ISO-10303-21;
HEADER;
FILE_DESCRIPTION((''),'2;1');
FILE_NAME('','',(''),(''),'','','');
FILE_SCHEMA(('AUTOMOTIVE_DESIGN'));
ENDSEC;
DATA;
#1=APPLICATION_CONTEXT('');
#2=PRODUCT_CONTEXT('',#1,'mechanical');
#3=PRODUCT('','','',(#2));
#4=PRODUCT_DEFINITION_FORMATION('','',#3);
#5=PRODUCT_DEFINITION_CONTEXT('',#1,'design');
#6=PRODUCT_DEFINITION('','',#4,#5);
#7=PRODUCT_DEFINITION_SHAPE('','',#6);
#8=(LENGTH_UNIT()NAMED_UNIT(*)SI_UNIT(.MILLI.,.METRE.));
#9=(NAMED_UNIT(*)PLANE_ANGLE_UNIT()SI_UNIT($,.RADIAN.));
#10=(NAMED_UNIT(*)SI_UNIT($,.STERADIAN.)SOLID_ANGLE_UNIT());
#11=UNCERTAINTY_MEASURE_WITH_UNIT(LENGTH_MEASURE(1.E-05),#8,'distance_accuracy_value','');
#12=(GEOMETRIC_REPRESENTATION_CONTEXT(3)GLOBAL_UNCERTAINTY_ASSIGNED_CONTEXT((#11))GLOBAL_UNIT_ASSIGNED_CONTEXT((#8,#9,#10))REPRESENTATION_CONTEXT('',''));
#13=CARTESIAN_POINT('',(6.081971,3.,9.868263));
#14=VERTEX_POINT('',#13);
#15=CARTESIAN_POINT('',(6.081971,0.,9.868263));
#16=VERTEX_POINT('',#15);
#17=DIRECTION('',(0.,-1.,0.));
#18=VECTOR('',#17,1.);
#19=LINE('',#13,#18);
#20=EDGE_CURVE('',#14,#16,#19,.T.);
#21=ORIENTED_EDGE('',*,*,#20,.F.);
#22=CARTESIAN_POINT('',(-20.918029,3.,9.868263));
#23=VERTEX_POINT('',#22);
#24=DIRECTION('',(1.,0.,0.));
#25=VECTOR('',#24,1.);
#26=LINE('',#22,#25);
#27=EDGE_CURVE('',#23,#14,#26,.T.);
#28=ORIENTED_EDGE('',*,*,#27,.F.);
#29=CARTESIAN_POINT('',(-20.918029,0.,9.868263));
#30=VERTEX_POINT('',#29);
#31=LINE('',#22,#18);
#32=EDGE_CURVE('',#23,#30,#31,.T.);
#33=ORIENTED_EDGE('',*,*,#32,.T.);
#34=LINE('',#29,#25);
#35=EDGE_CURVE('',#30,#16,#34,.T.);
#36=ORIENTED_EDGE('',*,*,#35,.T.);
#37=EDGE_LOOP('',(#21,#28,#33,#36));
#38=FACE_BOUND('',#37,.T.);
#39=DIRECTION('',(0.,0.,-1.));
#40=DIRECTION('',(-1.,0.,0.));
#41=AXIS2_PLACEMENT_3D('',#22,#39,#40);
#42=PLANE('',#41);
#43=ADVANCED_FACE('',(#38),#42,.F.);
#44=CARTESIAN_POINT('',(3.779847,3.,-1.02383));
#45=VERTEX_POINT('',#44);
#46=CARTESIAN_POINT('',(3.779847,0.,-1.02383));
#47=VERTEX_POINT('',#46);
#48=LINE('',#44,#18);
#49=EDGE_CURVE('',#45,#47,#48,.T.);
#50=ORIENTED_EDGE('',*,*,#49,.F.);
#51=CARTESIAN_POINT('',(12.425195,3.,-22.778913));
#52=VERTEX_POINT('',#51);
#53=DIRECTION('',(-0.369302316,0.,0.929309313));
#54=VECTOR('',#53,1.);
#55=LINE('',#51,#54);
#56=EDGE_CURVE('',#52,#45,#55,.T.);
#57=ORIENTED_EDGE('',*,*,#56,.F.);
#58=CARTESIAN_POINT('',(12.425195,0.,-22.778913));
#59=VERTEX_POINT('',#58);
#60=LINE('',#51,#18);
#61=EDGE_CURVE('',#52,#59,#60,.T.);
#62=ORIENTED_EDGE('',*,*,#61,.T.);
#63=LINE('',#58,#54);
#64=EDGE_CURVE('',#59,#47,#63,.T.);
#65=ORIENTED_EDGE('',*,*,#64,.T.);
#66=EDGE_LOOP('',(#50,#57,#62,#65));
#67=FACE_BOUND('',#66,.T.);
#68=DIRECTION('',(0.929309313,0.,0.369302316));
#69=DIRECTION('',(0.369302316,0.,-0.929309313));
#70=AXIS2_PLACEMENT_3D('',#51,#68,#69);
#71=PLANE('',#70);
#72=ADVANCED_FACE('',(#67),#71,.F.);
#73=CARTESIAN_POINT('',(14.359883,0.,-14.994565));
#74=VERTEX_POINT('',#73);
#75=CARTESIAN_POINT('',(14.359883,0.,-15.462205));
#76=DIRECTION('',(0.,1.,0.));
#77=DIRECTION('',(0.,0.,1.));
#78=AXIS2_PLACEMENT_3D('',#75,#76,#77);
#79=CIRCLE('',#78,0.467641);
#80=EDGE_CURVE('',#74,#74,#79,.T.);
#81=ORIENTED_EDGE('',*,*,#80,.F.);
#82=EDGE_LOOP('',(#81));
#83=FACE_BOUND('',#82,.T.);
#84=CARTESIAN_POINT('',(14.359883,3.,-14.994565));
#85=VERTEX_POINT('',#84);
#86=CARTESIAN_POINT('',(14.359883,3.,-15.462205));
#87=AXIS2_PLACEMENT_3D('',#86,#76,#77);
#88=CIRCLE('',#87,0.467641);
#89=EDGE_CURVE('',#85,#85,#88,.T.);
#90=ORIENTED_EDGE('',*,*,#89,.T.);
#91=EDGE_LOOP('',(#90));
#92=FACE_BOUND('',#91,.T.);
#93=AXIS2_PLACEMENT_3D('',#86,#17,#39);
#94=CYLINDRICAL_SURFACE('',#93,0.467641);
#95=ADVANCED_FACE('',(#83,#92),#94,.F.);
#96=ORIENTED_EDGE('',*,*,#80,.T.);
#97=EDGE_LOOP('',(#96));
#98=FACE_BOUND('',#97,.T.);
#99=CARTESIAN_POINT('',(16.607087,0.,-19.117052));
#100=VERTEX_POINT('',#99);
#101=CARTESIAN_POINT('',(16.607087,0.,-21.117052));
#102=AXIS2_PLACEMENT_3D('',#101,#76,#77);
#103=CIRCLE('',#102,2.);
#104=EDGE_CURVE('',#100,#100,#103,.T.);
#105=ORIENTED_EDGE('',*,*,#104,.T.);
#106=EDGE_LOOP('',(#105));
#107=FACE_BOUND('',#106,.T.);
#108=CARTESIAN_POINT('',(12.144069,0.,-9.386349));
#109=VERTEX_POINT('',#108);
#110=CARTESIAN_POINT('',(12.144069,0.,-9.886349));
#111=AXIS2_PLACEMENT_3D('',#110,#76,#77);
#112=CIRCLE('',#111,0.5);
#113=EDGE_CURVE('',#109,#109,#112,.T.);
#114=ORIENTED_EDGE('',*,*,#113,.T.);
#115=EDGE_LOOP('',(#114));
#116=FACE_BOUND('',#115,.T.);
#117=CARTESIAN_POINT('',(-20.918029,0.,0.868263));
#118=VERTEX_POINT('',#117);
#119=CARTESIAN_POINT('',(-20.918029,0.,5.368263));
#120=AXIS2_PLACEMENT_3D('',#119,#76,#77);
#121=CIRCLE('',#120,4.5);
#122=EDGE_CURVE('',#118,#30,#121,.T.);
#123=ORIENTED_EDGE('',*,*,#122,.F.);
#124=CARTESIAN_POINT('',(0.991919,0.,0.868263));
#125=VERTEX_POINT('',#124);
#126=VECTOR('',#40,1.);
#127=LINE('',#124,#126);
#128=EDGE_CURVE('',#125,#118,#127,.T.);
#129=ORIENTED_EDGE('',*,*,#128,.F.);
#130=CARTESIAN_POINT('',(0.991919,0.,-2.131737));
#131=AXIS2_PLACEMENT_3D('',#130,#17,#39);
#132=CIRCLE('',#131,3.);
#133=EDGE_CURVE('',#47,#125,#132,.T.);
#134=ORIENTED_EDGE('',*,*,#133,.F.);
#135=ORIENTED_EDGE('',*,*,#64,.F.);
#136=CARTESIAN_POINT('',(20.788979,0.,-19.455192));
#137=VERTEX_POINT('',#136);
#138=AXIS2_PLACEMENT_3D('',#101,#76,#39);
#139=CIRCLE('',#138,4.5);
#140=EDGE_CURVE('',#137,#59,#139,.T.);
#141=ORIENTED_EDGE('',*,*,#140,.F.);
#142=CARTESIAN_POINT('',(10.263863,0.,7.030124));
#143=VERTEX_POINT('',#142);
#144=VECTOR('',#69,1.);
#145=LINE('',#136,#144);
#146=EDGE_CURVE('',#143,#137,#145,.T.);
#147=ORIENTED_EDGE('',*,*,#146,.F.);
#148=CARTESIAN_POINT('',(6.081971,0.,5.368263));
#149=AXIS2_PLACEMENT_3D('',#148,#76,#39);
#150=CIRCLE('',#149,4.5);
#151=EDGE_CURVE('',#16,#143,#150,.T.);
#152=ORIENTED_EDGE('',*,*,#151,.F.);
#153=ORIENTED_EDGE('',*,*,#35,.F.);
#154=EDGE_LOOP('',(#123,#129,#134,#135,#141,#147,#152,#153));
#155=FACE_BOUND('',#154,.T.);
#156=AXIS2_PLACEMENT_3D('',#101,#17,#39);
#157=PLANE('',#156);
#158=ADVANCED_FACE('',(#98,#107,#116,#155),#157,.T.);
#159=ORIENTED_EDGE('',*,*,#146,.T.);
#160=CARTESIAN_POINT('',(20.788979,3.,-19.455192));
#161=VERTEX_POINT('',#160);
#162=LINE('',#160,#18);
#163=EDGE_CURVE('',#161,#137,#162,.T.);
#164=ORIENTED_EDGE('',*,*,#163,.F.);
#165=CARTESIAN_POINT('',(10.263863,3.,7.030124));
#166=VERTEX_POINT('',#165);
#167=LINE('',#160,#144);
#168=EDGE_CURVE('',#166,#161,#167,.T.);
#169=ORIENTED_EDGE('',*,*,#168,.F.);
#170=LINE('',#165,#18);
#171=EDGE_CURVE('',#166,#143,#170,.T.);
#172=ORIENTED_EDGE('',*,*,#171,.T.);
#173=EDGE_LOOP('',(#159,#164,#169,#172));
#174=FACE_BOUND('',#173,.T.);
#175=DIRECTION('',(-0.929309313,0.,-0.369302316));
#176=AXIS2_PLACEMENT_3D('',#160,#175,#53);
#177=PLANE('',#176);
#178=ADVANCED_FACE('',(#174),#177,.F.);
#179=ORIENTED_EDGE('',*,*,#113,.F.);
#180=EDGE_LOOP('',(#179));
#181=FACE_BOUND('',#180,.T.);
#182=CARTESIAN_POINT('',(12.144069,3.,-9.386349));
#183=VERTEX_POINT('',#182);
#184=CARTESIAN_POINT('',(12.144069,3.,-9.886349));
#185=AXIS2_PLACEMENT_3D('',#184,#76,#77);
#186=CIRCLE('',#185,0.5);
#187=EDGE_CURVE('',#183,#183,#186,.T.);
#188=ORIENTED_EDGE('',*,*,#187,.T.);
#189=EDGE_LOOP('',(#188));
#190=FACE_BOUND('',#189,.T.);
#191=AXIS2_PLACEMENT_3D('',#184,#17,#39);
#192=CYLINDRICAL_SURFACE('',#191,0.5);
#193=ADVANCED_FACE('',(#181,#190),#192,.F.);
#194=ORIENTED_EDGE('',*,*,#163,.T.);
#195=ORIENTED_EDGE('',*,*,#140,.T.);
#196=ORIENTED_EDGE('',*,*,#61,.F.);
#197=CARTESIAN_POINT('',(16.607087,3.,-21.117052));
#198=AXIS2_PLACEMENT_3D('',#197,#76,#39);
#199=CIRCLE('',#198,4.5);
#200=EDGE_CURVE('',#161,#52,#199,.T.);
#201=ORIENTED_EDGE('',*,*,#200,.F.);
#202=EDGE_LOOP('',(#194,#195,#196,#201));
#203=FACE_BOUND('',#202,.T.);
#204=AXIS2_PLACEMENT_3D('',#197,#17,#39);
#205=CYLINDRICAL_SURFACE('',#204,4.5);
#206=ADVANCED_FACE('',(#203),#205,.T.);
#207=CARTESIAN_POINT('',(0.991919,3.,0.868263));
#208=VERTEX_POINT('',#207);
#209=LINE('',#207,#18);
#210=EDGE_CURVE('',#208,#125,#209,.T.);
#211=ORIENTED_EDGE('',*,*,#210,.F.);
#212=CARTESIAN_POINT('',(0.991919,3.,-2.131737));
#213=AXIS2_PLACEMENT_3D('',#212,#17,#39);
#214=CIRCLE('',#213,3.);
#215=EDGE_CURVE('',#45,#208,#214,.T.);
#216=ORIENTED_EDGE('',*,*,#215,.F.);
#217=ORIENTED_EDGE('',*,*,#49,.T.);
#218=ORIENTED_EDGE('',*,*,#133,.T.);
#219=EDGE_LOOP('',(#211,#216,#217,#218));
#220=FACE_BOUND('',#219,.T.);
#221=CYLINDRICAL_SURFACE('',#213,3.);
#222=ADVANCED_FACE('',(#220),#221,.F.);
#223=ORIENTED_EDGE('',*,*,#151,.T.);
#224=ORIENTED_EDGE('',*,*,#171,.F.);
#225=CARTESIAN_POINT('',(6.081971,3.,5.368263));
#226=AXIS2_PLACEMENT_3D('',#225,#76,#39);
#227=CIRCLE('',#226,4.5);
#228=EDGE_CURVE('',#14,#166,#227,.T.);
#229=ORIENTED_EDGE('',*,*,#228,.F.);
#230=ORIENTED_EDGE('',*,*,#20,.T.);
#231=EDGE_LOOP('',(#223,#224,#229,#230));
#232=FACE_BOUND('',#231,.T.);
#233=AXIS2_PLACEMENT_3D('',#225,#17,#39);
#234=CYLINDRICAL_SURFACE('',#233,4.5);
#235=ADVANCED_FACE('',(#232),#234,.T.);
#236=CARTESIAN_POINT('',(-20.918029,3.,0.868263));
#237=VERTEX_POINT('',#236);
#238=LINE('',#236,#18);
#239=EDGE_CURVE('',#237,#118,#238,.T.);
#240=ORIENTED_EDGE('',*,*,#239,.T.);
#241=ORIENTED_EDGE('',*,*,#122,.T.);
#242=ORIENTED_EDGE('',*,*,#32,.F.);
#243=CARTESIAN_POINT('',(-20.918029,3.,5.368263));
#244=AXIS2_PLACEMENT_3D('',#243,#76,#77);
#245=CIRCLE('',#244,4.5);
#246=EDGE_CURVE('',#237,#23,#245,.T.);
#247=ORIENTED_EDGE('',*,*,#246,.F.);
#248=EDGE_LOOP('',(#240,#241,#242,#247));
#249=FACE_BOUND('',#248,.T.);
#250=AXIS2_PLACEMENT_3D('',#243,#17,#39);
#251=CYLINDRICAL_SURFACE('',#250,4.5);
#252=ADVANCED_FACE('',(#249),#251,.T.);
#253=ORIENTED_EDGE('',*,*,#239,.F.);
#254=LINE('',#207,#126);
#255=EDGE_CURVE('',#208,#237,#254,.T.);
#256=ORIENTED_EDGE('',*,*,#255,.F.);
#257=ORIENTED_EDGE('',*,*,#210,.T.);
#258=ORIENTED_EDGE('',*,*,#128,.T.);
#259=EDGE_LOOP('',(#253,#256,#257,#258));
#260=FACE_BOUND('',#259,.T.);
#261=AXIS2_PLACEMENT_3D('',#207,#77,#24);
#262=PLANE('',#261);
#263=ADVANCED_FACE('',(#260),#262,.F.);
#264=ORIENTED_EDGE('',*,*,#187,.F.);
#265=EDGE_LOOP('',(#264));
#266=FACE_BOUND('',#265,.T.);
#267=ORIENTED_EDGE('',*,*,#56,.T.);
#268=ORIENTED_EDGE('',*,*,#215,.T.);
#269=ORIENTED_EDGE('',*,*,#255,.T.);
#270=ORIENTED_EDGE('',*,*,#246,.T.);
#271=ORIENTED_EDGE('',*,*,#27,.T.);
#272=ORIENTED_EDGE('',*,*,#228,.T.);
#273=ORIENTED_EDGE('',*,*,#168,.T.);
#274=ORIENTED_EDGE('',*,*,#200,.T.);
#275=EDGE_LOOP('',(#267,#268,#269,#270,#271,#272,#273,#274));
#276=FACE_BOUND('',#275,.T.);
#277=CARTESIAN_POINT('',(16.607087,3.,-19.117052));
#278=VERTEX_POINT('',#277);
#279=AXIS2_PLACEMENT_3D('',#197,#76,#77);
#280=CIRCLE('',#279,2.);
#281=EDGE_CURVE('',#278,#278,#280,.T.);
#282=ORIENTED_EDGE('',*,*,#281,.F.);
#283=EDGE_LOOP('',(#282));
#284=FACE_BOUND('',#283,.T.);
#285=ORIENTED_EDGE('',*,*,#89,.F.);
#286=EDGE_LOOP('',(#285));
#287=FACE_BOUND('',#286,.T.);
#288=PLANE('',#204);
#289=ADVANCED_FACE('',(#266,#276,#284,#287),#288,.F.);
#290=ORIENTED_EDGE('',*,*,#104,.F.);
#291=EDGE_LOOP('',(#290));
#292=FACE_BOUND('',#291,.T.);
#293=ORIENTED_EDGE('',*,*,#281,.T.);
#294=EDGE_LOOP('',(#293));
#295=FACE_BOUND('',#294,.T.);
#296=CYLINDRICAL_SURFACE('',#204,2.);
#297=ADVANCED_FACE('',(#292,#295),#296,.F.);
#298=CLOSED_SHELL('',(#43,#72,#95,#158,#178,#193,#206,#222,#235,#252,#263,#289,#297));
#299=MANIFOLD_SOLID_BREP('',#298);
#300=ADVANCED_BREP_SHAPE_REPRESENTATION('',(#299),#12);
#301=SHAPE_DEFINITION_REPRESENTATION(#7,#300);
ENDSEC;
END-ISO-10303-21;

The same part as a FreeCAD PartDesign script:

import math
import FreeCAD as App
import Part
import Sketcher
from FreeCAD import Vector
Q = App.Units.Quantity

doc = App.newDocument("Part")
params = doc.addObject("Spreadsheet::Sheet", "Params")
for row, (alias, value) in enumerate([
    ("sketch1_diameter", "1 mm"),
    ("sketch1_diameter2", "4 mm"),
    ("sketch1_radius", "3 mm"),
    ("sketch1_radius2", "4.5 mm"),
    ("sketch1_width", "27 mm"),
    ("pad1_length", "3 mm"),
], start=1):
    params.set(f"A{row}", alias)
    params.set(f"B{row}", "=" + value)
    params.setAlias(f"B{row}", alias)

body = doc.addObject("PartDesign::Body", "Body")

# Sketch on XZ plane
sketch1 = body.newObject("Sketcher::SketchObject", "Sketch")
sketch1.AttachmentSupport = (doc.getObject("XZ_Plane"), [""])
sketch1.MapMode = "FlatFace"
sketch1.addGeometry(Part.LineSegment(Vector(10.263863, 7.030124, 0), Vector(20.788979, -19.455192, 0)), False)
sketch1.addGeometry(Part.ArcOfCircle(Part.Circle(Vector(16.607087, -21.117052, 0), Vector(0, 0, 1), 4.5), math.radians(-158.327404), math.radians(21.672596)), False)
sketch1.addGeometry(Part.LineSegment(Vector(12.425195, -22.778913, 0), Vector(3.779847, -1.02383, 0)), False)
sketch1.addGeometry(Part.ArcOfCircle(Part.Circle(Vector(0.991919, -2.131737, 0), Vector(0, 0, 1), 3), math.radians(21.672596), math.radians(90)), False)
sketch1.addGeometry(Part.LineSegment(Vector(0.991919, 0.868263, 0), Vector(-20.918029, 0.868263, 0)), False)
sketch1.addGeometry(Part.ArcOfCircle(Part.Circle(Vector(-20.918029, 5.368263, 0), Vector(0, 0, 1), 4.5), math.radians(90), math.radians(270)), False)
sketch1.addGeometry(Part.LineSegment(Vector(-20.918029, 9.868263, 0), Vector(6.081971, 9.868263, 0)), False)
sketch1.addGeometry(Part.ArcOfCircle(Part.Circle(Vector(6.081971, 5.368263, 0), Vector(0, 0, 1), 4.5), math.radians(21.672596), math.radians(90)), False)
sketch1.addGeometry(Part.Circle(Vector(12.144069, -9.886349, 0), Vector(0, 0, 1), 0.5), False)
sketch1.addGeometry(Part.Circle(Vector(14.359883, -15.462205, 0), Vector(0, 0, 1), 0.467641), False)
sketch1.addGeometry(Part.Circle(Vector(16.607087, -21.117052, 0), Vector(0, 0, 1), 2), False)
sketch1.addConstraint(Sketcher.Constraint("Tangent", 0, 2, 1, 2))
sketch1.addConstraint(Sketcher.Constraint("Tangent", 1, 1, 2, 1))
sketch1.addConstraint(Sketcher.Constraint("Tangent", 2, 2, 3, 1))
sketch1.addConstraint(Sketcher.Constraint("Tangent", 3, 2, 4, 1))
sketch1.addConstraint(Sketcher.Constraint("Tangent", 4, 2, 5, 2))
sketch1.addConstraint(Sketcher.Constraint("Tangent", 5, 1, 6, 1))
sketch1.addConstraint(Sketcher.Constraint("Tangent", 6, 2, 7, 2))
sketch1.addConstraint(Sketcher.Constraint("Tangent", 7, 1, 0, 1))
sketch1.addConstraint(Sketcher.Constraint("Horizontal", 4))
sketch1.addConstraint(Sketcher.Constraint("Horizontal", 6))
sketch1.addConstraint(Sketcher.Constraint("Coincident", 10, 3, 1, 3))
sketch1.addConstraint(Sketcher.Constraint("Equal", 1, 5))
sketch1.addConstraint(Sketcher.Constraint("Equal", 5, 7))
sketch1.addConstraint(Sketcher.Constraint("Parallel", 0, 2))
sketch1.addConstraint(Sketcher.Constraint("Diameter", 8, Q("1 mm")))
sketch1.addConstraint(Sketcher.Constraint("Diameter", 10, Q("4 mm")))
sketch1.addConstraint(Sketcher.Constraint("Radius", 3, Q("3 mm")))
sketch1.addConstraint(Sketcher.Constraint("Radius", 1, Q("4.5 mm")))
sketch1.addConstraint(Sketcher.Constraint("DistanceX", 6, 1, 6, 2, Q("27 mm")))
sketch1.addConstraint(Sketcher.Constraint("Distance", 0, Q("28.5 mm")))
sketch1.addConstraint(Sketcher.Constraint("Diameter", 9, Q("0.935281 mm")))
sketch1.addConstraint(Sketcher.Constraint("DistanceX", 4, 2, 4, 1, Q("21.909948 mm")))
sketch1.addConstraint(Sketcher.Constraint("DistanceX", -1, 1, 3, 3, Q("0.991919 mm")))
sketch1.addConstraint(Sketcher.Constraint("DistanceX", -1, 1, 8, 3, Q("12.144069 mm")))
sketch1.addConstraint(Sketcher.Constraint("DistanceY", 8, 3, -1, 1, Q("9.886349 mm")))
sketch1.addConstraint(Sketcher.Constraint("DistanceY", 0, 2, -1, 1, Q("19.455192 mm")))
sketch1.addConstraint(Sketcher.Constraint("DistanceY", 9, 3, 3, 3, Q("13.330468 mm")))
sketch1.addConstraint(Sketcher.Constraint("DistanceX", 7, 3, 9, 3, Q("8.277911 mm")))
sketch1.setExpression("Constraints[14]", "Params.sketch1_diameter")
sketch1.setExpression("Constraints[15]", "Params.sketch1_diameter2")
sketch1.setExpression("Constraints[16]", "Params.sketch1_radius")
sketch1.setExpression("Constraints[17]", "Params.sketch1_radius2")
sketch1.setExpression("Constraints[18]", "Params.sketch1_width")
pad1 = body.newObject("PartDesign::Pad", "Pad")
pad1.Profile = sketch1
pad1.setExpression("Length", "Params.pad1_length")
pad1.Reversed = True

doc.recompute()
